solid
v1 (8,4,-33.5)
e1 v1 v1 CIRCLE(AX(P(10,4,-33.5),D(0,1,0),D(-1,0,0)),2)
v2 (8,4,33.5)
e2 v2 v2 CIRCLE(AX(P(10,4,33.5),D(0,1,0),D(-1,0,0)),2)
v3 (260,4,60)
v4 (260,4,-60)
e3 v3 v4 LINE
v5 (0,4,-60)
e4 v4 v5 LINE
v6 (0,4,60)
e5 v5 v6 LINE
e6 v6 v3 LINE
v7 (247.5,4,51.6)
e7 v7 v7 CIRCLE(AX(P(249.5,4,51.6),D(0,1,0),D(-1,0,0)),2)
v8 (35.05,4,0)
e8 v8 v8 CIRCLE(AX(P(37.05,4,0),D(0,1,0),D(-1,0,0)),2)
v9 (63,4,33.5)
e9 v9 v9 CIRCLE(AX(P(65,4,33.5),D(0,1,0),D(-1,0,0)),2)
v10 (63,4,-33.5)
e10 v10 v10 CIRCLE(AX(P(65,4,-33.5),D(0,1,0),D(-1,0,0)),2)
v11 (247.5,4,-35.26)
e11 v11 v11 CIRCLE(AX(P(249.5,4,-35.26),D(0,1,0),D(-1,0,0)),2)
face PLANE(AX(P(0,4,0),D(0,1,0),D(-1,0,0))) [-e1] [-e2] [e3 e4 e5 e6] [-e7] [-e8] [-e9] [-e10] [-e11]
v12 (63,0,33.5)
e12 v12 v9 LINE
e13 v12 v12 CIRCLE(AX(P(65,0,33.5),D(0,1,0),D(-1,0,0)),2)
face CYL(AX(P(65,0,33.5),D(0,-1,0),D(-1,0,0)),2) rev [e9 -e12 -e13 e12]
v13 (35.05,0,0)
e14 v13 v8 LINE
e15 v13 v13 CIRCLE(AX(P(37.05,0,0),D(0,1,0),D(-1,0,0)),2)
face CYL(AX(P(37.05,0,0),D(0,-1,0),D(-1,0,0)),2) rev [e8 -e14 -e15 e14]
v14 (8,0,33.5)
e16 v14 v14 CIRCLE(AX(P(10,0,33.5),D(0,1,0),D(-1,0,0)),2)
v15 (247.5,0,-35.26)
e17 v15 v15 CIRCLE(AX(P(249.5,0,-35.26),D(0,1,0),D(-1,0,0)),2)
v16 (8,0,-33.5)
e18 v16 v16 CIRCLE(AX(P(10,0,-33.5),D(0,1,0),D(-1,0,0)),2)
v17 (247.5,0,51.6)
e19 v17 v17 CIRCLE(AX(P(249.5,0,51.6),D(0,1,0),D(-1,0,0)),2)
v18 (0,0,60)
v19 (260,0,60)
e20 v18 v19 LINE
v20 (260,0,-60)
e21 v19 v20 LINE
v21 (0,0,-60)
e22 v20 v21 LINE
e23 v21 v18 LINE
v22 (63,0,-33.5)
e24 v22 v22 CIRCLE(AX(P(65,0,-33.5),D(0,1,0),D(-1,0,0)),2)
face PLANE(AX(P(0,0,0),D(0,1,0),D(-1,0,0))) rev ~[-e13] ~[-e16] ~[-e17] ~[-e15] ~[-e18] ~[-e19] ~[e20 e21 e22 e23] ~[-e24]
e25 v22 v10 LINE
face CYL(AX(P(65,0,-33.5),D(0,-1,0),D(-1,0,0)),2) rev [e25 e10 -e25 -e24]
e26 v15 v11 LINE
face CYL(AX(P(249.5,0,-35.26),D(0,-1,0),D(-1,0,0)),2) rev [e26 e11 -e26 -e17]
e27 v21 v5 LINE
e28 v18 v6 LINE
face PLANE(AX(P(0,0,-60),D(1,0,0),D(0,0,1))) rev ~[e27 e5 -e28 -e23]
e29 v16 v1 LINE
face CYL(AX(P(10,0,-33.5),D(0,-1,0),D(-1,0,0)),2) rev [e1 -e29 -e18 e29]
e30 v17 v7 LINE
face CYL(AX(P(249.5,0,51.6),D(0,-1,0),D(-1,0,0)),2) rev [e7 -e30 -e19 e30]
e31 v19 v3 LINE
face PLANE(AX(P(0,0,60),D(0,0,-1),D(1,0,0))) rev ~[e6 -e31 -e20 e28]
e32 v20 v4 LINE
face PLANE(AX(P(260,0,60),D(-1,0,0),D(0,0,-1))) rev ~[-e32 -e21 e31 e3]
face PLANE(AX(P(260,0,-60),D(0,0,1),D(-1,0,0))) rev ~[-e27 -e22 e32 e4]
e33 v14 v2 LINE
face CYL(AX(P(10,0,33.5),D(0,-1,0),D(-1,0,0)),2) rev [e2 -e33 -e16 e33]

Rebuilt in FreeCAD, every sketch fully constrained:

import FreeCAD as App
import Part
import Sketcher

V = App.Vector
Q = App.Units.Quantity

doc = App.newDocument("Part")
body = doc.addObject("PartDesign::Body", "Body")

# Sketch on XZ plane
sketch1 = body.newObject("Sketcher::SketchObject", "Sketch")
sketch1.AttachmentSupport = (doc.getObject("XZ_Plane"), [""])
sketch1.MapMode = "FlatFace"
sketch1.addGeometry(Part.LineSegment(V(0, -60, 0), V(0, 60, 0)), False)
sketch1.addGeometry(Part.LineSegment(V(0, 60, 0), V(260, 60, 0)), False)
sketch1.addGeometry(Part.LineSegment(V(260, 60, 0), V(260, -60, 0)), False)
sketch1.addGeometry(Part.LineSegment(V(260, -60, 0), V(0, -60, 0)), False)
sketch1.addGeometry(Part.Circle(V(249.5, -35.3, 0), V(0, 0, 1), 2), False)
sketch1.addGeometry(Part.Circle(V(65, -33.5, 0), V(0, 0, 1), 2), False)
sketch1.addGeometry(Part.Circle(V(10, -33.5, 0), V(0, 0, 1), 2), False)
sketch1.addGeometry(Part.Circle(V(249.5, 51.6, 0), V(0, 0, 1), 2), False)
sketch1.addGeometry(Part.Circle(V(37, 0, 0), V(0, 0, 1), 2), False)
sketch1.addGeometry(Part.Circle(V(65, 33.5, 0), V(0, 0, 1), 2), False)
sketch1.addGeometry(Part.Circle(V(10, 33.5, 0), V(0, 0, 1), 2), False)
sketch1.addConstraint(Sketcher.Constraint("Coincident", 0, 2, 1, 1))
sketch1.addConstraint(Sketcher.Constraint("Coincident", 1, 2, 2, 1))
sketch1.addConstraint(Sketcher.Constraint("Coincident", 2, 2, 3, 1))
sketch1.addConstraint(Sketcher.Constraint("Coincident", 3, 2, 0, 1))
sketch1.addConstraint(Sketcher.Constraint("Vertical", 0))
sketch1.addConstraint(Sketcher.Constraint("Horizontal", 1))
sketch1.addConstraint(Sketcher.Constraint("Vertical", 2))
sketch1.addConstraint(Sketcher.Constraint("Horizontal", 3))
sketch1.addConstraint(Sketcher.Constraint("Equal", 4, 5))
sketch1.addConstraint(Sketcher.Constraint("Equal", 5, 6))
sketch1.addConstraint(Sketcher.Constraint("Equal", 6, 7))
sketch1.addConstraint(Sketcher.Constraint("Equal", 7, 8))
sketch1.addConstraint(Sketcher.Constraint("Equal", 8, 9))
sketch1.addConstraint(Sketcher.Constraint("Equal", 9, 10))
sketch1.addConstraint(Sketcher.Constraint("Symmetric", 0, 2, 3, 2, -1, 1))
sketch1.addConstraint(Sketcher.Constraint("Symmetric", 5, 3, 9, 3, -1))
sketch1.addConstraint(Sketcher.Constraint("Symmetric", 6, 3, 10, 3, -1))
sketch1.addConstraint(Sketcher.Constraint("PointOnObject", 8, 3, -1))
sketch1.addConstraint(Sketcher.Constraint("Horizontal", 5, 3, 6, 3))
sketch1.addConstraint(Sketcher.Constraint("Vertical", 4, 3, 7, 3))
sketch1.addConstraint(Sketcher.Constraint("Diameter", 4, Q("4 mm")))
sketch1.addConstraint(Sketcher.Constraint("DistanceX", 1, 1, 1, 2, Q("260 mm")))
sketch1.addConstraint(Sketcher.Constraint("DistanceY", 0, 1, 0, 2, Q("120 mm")))
sketch1.addConstraint(Sketcher.Constraint("DistanceX", -1, 1, 6, 3, Q("10 mm")))
sketch1.addConstraint(Sketcher.Constraint("DistanceX", 6, 3, 5, 3, Q("55 mm")))
sketch1.addConstraint(Sketcher.Constraint("DistanceY", 5, 3, 9, 3, Q("67 mm")))
sketch1.addConstraint(Sketcher.Constraint("DistanceX", 7, 3, 1, 2, Q("10.5 mm")))
sketch1.addConstraint(Sketcher.Constraint("DistanceY", 7, 3, 1, 2, Q("8.4 mm")))
sketch1.addConstraint(Sketcher.Constraint("DistanceX", -1, 1, 8, 3, Q("37.05 mm")))
sketch1.addConstraint(Sketcher.Constraint("DistanceY", 2, 2, 4, 3, Q("24.74 mm")))
pad1 = body.newObject("PartDesign::Pad", "Pad")
pad1.Profile = sketch1
pad1.Length = 4
pad1.Reversed = True

doc.recompute()
